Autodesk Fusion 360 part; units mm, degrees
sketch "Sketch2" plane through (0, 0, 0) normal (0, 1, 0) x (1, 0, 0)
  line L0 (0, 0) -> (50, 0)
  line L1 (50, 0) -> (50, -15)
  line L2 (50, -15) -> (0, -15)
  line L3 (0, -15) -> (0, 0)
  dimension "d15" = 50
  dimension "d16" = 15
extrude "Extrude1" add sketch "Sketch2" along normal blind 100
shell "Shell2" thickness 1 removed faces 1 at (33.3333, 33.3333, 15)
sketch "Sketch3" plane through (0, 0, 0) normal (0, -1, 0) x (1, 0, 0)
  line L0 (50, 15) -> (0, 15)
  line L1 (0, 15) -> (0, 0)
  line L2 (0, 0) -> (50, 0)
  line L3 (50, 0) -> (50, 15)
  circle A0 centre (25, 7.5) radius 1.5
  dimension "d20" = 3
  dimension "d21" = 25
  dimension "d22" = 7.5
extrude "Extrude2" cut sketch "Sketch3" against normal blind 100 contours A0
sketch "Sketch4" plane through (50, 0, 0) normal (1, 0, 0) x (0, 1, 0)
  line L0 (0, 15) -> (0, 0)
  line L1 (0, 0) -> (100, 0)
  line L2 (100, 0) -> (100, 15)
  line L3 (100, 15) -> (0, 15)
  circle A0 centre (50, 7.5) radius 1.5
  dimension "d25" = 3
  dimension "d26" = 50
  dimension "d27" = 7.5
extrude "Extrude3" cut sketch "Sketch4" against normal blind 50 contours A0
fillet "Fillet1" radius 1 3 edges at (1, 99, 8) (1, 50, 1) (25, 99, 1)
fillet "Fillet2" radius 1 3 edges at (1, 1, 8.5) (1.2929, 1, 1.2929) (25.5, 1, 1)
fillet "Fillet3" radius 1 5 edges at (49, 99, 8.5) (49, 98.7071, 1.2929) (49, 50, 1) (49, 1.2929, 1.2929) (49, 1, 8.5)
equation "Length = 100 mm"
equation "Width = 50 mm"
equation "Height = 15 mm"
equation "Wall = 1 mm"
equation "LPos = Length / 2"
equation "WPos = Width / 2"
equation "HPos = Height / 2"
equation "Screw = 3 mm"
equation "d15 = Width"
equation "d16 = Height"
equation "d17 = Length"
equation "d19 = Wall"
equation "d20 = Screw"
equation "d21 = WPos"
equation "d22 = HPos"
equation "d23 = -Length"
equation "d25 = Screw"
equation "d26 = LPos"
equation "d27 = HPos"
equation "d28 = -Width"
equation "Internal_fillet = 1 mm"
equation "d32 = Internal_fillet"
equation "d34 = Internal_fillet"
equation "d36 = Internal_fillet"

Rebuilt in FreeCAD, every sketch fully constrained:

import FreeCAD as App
import Part
import Sketcher

V = App.Vector
Q = App.Units.Quantity


def edges_at(feature, points):
    """Names of the edges that pass closest to the given points."""
    edges = feature.Shape.Edges
    near = lambda p: min(range(len(edges)), key=lambda i: edges[i].distToShape(Part.Vertex(*p))[0])
    return sorted({f"Edge{near(p) + 1}" for p in points})


def faces_at(feature, points):
    """Names of the faces that lie closest to the given points."""
    faces = feature.Shape.Faces
    near = lambda p: min(range(len(faces)), key=lambda i: faces[i].distToShape(Part.Vertex(*p))[0])
    return sorted({f"Face{near(p) + 1}" for p in points})


def add_polygon(sketch, points):
    """Adds a closed chain of lines whose ends are joined by coincident constraints."""
    first, n = sketch.GeometryCount, len(points)
    for a, b in zip(points, points[1:] + points[:1]):
        sketch.addGeometry(Part.LineSegment(App.Vector(*a, 0), App.Vector(*b, 0)), False)
    for i in range(n):
        sketch.addConstraint(Sketcher.Constraint("Coincident", first + i, 2, first + (i + 1) % n, 1))

doc = App.newDocument("Part")
body = doc.addObject("PartDesign::Body", "Body")

# Sketch on XZ plane
sketch1 = doc.addObject("Sketcher::SketchObject", "Sketch")
body.addObject(sketch1)
sketch1.AttachmentSupport = (doc.XZ_Plane, [""])
sketch1.MapMode = "FlatFace"
add_polygon(sketch1, [(50, 0), (0, 0), (0, 15), (50, 15)])  # lines 0-3
sketch1.addConstraint([
    Sketcher.Constraint("Horizontal", 0),
    Sketcher.Constraint("Vertical", 1),
    Sketcher.Constraint("Horizontal", 2),
    Sketcher.Constraint("Vertical", 3),
    Sketcher.Constraint("Coincident", 0, 2, -1, 1),
    Sketcher.Constraint("DistanceX", 0, 2, 0, 1, Q("50 mm")),
    Sketcher.Constraint("DistanceY", 1, 1, 1, 2, Q("15 mm")),
])
pad1 = doc.addObject("PartDesign::Pad", "Pad")
body.addObject(pad1)
pad1.Profile = sketch1
pad1.Length = 100
pad1.Reversed = True
doc.recompute()

thickness = doc.addObject("PartDesign::Thickness", "Thickness")
body.addObject(thickness)
thickness.Base = (pad1, faces_at(pad1, [(33.333, 33.333, 15)]))
thickness.Value = 1
thickness.Reversed = True
thickness.Join = "Intersection"

# Sketch on XZ plane
sketch2 = doc.addObject("Sketcher::SketchObject", "Sketch001")
body.addObject(sketch2)
sketch2.AttachmentSupport = (doc.XZ_Plane, [""])
sketch2.MapMode = "FlatFace"
sketch2.addGeometry(Part.Circle(V(25, 7.5, 0), V(0, 0, 1), 1.5), False)
sketch2.addConstraint([
    Sketcher.Constraint("Diameter", 0, Q("3 mm")),
    Sketcher.Constraint("DistanceX", -1, 1, 0, 3, Q("25 mm")),
    Sketcher.Constraint("DistanceY", -1, 1, 0, 3, Q("7.5 mm")),
])
pocket1 = doc.addObject("PartDesign::Pocket", "Pocket")
body.addObject(pocket1)
pocket1.Profile = sketch2
pocket1.Length = 100

# Sketch on YZ plane
sketch3 = doc.addObject("Sketcher::SketchObject", "Sketch002")
body.addObject(sketch3)
sketch3.AttachmentSupport = (doc.YZ_Plane, [""])
sketch3.MapMode = "FlatFace"
sketch3.AttachmentOffset = App.Placement(V(0, 0, 50), App.Rotation())
sketch3.addGeometry(Part.Circle(V(50, 7.5, 0), V(0, 0, 1), 1.5), False)
sketch3.addConstraint([
    Sketcher.Constraint("Diameter", 0, Q("3 mm")),
    Sketcher.Constraint("DistanceX", -1, 1, 0, 3, Q("50 mm")),
    Sketcher.Constraint("DistanceY", -1, 1, 0, 3, Q("7.5 mm")),
])
pocket2 = doc.addObject("PartDesign::Pocket", "Pocket001")
body.addObject(pocket2)
pocket2.Profile = sketch3
pocket2.Length = 50
doc.recompute()

fillet = doc.addObject("PartDesign::Fillet", "Fillet")
body.addObject(fillet)
fillet.Base = (pocket2, edges_at(pocket2, [(1, 99, 8), (1, 50, 1), (25, 99, 1)]))
fillet.Radius = 1
doc.recompute()

fillet2 = doc.addObject("PartDesign::Fillet", "Fillet001")
body.addObject(fillet2)
fillet2.Base = (fillet, edges_at(fillet, [(1, 1, 8.5), (1.293, 1, 1.293), (25.5, 1, 1)]))
fillet2.Radius = 1
doc.recompute()

fillet3 = doc.addObject("PartDesign::Fillet", "Fillet002")
body.addObject(fillet3)
fillet3.Base = (fillet2, edges_at(fillet2, [
    (49, 99, 8.5),
    (49, 98.707, 1.293),
    (49, 50, 1),
    (49, 1.293, 1.293),
    (49, 1, 8.5),
]))
fillet3.Radius = 1

doc.recompute()
